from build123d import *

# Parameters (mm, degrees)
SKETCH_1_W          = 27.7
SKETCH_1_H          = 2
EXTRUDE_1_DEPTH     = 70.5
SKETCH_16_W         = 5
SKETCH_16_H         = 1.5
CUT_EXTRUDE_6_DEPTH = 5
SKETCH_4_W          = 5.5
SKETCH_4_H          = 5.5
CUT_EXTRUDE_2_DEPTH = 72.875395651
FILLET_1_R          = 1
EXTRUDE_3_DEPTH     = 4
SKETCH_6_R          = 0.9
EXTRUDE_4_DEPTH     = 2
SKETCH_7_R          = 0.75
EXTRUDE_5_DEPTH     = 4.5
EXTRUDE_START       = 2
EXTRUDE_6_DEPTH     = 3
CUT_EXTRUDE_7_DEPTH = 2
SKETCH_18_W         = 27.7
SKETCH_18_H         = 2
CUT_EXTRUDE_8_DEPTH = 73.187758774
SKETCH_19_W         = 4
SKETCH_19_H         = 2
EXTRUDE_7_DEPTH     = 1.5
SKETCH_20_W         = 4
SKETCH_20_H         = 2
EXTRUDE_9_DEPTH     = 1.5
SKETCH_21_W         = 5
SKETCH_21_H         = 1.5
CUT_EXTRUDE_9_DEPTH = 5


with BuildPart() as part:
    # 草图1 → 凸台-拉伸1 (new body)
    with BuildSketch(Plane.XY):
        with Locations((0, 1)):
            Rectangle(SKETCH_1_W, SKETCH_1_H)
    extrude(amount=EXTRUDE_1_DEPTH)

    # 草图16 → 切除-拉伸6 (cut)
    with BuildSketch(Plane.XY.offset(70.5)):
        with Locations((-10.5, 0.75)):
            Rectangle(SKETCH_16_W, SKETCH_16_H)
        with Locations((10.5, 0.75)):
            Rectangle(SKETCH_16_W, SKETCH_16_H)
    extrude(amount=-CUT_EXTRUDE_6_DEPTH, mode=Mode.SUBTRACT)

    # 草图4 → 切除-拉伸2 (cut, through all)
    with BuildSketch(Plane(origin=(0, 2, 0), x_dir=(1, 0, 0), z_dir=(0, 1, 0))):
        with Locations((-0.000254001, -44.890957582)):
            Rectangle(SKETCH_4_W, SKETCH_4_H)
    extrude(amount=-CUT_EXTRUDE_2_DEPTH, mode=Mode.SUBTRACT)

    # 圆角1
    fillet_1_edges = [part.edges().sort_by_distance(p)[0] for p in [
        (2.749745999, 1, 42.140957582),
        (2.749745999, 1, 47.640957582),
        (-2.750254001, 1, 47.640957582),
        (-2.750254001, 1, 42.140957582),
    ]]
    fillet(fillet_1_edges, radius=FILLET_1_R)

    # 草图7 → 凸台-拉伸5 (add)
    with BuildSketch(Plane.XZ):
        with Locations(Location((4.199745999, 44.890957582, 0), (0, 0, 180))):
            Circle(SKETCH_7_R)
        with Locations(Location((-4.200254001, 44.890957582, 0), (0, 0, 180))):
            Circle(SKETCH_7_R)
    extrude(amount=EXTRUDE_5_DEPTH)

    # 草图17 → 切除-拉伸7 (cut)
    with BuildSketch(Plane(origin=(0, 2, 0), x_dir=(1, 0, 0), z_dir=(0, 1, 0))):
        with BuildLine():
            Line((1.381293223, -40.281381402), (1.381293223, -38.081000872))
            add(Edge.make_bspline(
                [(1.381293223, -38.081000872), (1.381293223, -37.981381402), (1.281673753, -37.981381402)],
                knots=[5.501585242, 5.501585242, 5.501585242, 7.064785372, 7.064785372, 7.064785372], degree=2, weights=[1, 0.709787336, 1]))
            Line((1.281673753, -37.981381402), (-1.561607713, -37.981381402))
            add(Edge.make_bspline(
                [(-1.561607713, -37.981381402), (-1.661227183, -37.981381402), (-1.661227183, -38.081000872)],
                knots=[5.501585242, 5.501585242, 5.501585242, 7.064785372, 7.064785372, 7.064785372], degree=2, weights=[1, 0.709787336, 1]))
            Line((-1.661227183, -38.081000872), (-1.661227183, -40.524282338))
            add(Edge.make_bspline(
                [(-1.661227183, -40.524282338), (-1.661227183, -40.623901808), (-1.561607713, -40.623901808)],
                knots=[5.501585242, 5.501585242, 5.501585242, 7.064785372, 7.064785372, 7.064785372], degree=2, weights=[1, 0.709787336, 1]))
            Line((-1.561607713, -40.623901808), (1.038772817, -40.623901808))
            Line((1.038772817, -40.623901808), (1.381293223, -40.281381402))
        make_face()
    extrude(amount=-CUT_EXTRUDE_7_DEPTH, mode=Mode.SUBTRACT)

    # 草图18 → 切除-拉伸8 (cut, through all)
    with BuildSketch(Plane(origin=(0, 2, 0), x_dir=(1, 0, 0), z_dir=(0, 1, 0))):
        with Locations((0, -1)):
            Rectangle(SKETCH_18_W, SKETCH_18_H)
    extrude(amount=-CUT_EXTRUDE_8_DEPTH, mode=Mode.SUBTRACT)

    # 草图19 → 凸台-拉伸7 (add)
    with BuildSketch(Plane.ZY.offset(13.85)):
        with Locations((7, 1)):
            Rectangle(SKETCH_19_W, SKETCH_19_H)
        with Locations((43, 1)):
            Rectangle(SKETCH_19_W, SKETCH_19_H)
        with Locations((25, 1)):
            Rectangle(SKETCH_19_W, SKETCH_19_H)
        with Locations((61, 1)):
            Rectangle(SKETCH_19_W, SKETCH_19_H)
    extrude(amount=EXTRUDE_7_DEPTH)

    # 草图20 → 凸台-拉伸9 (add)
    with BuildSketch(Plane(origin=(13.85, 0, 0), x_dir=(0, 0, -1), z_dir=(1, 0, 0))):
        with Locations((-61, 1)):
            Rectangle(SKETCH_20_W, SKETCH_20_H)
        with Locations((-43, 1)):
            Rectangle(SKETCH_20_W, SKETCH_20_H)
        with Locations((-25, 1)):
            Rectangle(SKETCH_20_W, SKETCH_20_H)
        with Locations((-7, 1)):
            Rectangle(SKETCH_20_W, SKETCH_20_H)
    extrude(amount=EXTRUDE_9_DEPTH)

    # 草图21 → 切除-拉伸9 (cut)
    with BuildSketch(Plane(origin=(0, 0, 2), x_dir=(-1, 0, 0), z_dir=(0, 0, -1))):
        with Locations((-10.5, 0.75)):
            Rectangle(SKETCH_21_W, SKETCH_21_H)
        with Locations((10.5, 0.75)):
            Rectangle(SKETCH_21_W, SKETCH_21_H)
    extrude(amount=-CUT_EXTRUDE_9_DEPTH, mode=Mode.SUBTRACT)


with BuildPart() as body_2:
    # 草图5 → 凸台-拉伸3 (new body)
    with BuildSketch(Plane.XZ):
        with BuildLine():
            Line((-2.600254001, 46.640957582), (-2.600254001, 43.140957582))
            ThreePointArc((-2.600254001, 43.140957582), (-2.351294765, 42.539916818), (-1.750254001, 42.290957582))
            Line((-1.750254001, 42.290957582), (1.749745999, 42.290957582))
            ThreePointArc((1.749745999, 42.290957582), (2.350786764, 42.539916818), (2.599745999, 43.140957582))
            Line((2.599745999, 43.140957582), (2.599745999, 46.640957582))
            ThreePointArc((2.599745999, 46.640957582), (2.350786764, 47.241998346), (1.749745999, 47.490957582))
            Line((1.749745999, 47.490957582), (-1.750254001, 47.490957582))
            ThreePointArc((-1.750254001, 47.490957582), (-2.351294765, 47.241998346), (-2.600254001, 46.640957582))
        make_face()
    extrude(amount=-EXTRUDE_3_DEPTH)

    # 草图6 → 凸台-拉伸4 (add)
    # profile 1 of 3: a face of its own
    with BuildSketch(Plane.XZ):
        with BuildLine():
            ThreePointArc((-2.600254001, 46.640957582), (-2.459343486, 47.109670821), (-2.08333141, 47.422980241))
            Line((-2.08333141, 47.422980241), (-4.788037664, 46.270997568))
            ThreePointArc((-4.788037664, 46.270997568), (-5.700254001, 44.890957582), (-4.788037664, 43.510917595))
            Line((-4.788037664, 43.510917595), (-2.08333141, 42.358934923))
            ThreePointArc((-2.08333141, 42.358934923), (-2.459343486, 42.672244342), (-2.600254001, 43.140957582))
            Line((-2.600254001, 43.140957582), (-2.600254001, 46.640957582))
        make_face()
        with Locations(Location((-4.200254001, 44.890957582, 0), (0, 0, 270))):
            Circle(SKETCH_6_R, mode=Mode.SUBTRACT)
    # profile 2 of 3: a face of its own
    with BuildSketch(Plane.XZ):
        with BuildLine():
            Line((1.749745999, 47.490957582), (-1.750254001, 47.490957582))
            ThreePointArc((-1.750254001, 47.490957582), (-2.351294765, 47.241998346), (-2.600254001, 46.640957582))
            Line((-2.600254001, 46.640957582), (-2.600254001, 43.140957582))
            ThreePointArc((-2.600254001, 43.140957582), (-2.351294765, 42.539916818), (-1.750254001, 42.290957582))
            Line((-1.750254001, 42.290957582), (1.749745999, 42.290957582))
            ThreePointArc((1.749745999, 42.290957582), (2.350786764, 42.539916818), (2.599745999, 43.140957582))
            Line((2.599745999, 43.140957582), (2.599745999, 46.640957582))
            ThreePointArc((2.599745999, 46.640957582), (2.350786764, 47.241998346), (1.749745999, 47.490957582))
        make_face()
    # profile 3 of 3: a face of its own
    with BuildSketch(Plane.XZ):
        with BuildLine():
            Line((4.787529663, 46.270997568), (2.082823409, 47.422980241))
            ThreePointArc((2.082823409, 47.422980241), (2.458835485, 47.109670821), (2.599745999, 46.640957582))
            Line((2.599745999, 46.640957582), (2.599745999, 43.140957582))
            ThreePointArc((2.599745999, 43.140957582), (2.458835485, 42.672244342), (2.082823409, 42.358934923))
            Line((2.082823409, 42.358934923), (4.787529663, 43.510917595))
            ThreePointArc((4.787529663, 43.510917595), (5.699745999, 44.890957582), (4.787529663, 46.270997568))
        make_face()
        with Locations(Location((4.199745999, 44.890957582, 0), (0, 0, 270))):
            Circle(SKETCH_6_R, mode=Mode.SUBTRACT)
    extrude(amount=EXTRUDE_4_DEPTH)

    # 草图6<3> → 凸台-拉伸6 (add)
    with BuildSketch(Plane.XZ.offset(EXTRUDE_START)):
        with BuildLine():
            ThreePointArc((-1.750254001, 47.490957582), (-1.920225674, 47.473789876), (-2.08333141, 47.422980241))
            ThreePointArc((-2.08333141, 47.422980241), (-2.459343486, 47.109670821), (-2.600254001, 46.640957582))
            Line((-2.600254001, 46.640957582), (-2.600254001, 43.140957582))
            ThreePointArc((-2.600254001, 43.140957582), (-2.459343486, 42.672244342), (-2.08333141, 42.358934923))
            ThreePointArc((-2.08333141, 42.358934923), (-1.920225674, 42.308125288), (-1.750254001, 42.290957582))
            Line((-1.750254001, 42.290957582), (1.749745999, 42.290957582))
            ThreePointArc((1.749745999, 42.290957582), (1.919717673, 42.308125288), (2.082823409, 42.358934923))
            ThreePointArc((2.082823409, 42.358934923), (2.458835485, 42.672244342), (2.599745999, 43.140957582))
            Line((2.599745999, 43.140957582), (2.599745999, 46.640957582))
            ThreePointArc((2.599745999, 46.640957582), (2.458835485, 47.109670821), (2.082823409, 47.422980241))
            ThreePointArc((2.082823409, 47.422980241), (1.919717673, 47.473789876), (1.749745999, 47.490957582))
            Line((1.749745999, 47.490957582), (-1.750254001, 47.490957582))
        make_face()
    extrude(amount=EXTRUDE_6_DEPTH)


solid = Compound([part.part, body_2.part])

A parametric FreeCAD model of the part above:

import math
import FreeCAD as App
import Part
import Sketcher
Q = App.Units.Quantity


def edges_at(feature, points):
    """Names of the edges that pass closest to the given points."""
    edges = feature.Shape.Edges
    near = lambda p: min(range(len(edges)), key=lambda i: edges[i].distToShape(Part.Vertex(*p))[0])
    return sorted({f"Edge{near(p) + 1}" for p in points})


def add_polygon(sketch, points):
    """Adds a closed chain of lines whose ends are joined by coincident constraints."""
    first, n = sketch.GeometryCount, len(points)
    for a, b in zip(points, points[1:] + points[:1]):
        sketch.addGeometry(Part.LineSegment(App.Vector(*a, 0), App.Vector(*b, 0)), False)
    for i in range(n):
        sketch.addConstraint(Sketcher.Constraint("Coincident", first + i, 2, first + (i + 1) % n, 1))

doc = App.newDocument("Part")
body = doc.addObject("PartDesign::Body", "Body")

sketch1 = body.newObject("Sketcher::SketchObject", "Sketch")
sketch1.AttachmentSupport = (doc.getObject("XY_Plane"), [""])
sketch1.MapMode = "FlatFace"
add_polygon(sketch1, [(-13.85, 2), (-13.85, 0), (13.85, 0), (13.85, 2)])
sketch1.addConstraint(Sketcher.Constraint("Vertical", 0))
sketch1.addConstraint(Sketcher.Constraint("Horizontal", 1))
sketch1.addConstraint(Sketcher.Constraint("Vertical", 2))
sketch1.addConstraint(Sketcher.Constraint("Horizontal", 3))
sketch1.addConstraint(Sketcher.Constraint("Symmetric", 0, 2, 1, 2, -1, 1))
sketch1.addConstraint(Sketcher.Constraint("DistanceY", 0, 2, 0, 1, Q("2 mm")))
sketch1.addConstraint(Sketcher.Constraint("DistanceX", 1, 1, 1, 2, Q("27.7 mm")))
pad1 = body.newObject("PartDesign::Pad", "Pad")
pad1.Profile = sketch1
pad1.Length = 70.5

sketch2 = body.newObject("Sketcher::SketchObject", "Sketch001")
sketch2.AttachmentSupport = (doc.getObject("XY_Plane"), [""])
sketch2.MapMode = "FlatFace"
sketch2.AttachmentOffset = App.Placement(App.Vector(0, 0, 70.5), App.Rotation())
add_polygon(sketch2, [(-13, 1.5), (-13, 0), (-8, 0), (-8, 1.5)])
add_polygon(sketch2, [(8, 1.5), (8, 0), (13, 0), (13, 1.5)])
sketch2.addConstraint(Sketcher.Constraint("Vertical", 0))
sketch2.addConstraint(Sketcher.Constraint("Horizontal", 1))
sketch2.addConstraint(Sketcher.Constraint("Vertical", 2))
sketch2.addConstraint(Sketcher.Constraint("Horizontal", 3))
sketch2.addConstraint(Sketcher.Constraint("Vertical", 4))
sketch2.addConstraint(Sketcher.Constraint("Horizontal", 5))
sketch2.addConstraint(Sketcher.Constraint("Vertical", 6))
sketch2.addConstraint(Sketcher.Constraint("Horizontal", 7))
sketch2.addConstraint(Sketcher.Constraint("Symmetric", 1, 2, 4, 2, -1, 1))
sketch2.addConstraint(Sketcher.Constraint("Symmetric", 0, 2, 5, 2, -2))
sketch2.addConstraint(Sketcher.Constraint("Horizontal", 3, 2, 6, 2))
sketch2.addConstraint(Sketcher.Constraint("DistanceX", 1, 1, 1, 2, Q("5 mm")))
sketch2.addConstraint(Sketcher.Constraint("DistanceY", 0, 2, 0, 1, Q("1.5 mm")))
sketch2.addConstraint(Sketcher.Constraint("DistanceX", 0, 2, -1, 1, Q("13 mm")))
pocket1 = body.newObject("PartDesign::Pocket", "Pocket")
pocket1.Profile = sketch2
pocket1.Length = 5

sketch3 = body.newObject("Sketcher::SketchObject", "Sketch002")
sketch3.AttachmentSupport = (doc.getObject("XZ_Plane"), [""])
sketch3.MapMode = "FlatFace"
sketch3.AttachmentOffset = App.Placement(App.Vector(0, 0, -2), App.Rotation())
add_polygon(sketch3, [(-2.750254, 42.140958), (-2.750254, 47.640958), (2.749746, 47.640958), (2.749746, 42.140958)])
sketch3.addConstraint(Sketcher.Constraint("Vertical", 0))
sketch3.addConstraint(Sketcher.Constraint("Horizontal", 1))
sketch3.addConstraint(Sketcher.Constraint("Vertical", 2))
sketch3.addConstraint(Sketcher.Constraint("Horizontal", 3))
sketch3.addConstraint(Sketcher.Constraint("Equal", 3, 0))
sketch3.addConstraint(Sketcher.Constraint("DistanceX", 1, 1, 1, 2, Q("5.5 mm")))
sketch3.addConstraint(Sketcher.Constraint("DistanceX", 0, 2, -1, 1, Q("2.750254 mm")))
sketch3.addConstraint(Sketcher.Constraint("DistanceY", -1, 1, 0, 2, Q("47.640958 mm")))
pocket2 = body.newObject("PartDesign::Pocket", "Pocket001")
pocket2.Profile = sketch3
pocket2.Type = "ThroughAll"
pocket2.Reversed = True
doc.recompute()

fillet = body.newObject("PartDesign::Fillet", "Fillet")
fillet.Base = (pocket2, edges_at(pocket2, [
    (2.75, 1, 42.141),
    (2.75, 1, 47.641),
    (-2.75, 1, 47.641),
    (-2.75, 1, 42.141),
]))
fillet.Radius = 1

sketch4 = body.newObject("Sketcher::SketchObject", "Sketch003")
sketch4.AttachmentSupport = (doc.getObject("XZ_Plane"), [""])
sketch4.MapMode = "FlatFace"
sketch4.addGeometry(Part.Circle(App.Vector(4.199746, 44.890958, 0), App.Vector(0, 0, 1), 0.75), False)
sketch4.addGeometry(Part.Circle(App.Vector(-4.200254, 44.890958, 0), App.Vector(0, 0, 1), 0.75), False)
sketch4.addConstraint(Sketcher.Constraint("Equal", 0, 1))
sketch4.addConstraint(Sketcher.Constraint("Horizontal", 0, 3, 1, 3))
sketch4.addConstraint(Sketcher.Constraint("Diameter", 0, Q("1.5 mm")))
sketch4.addConstraint(Sketcher.Constraint("DistanceX", 1, 3, 0, 3, Q("8.4 mm")))
sketch4.addConstraint(Sketcher.Constraint("DistanceX", -1, 1, 0, 3, Q("4.199746 mm")))
sketch4.addConstraint(Sketcher.Constraint("DistanceY", -1, 1, 0, 3, Q("44.890958 mm")))
pad2 = body.newObject("PartDesign::Pad", "Pad001")
pad2.Profile = sketch4
pad2.Length = 4.5

sketch5 = body.newObject("Sketcher::SketchObject", "Sketch004")
sketch5.AttachmentSupport = (doc.getObject("XZ_Plane"), [""])
sketch5.MapMode = "FlatFace"
sketch5.AttachmentOffset = App.Placement(App.Vector(0, 0, -2), App.Rotation())
sketch5.addGeometry(Part.LineSegment(App.Vector(1.381293, 40.281381, 0), App.Vector(1.381293, 38.081001, 0)), False)
sketch5.addGeometry(Part.BSplineCurve([App.Vector(1.381293, 38.081001, 0), App.Vector(1.381293, 37.981381, 0), App.Vector(1.281674, 37.981381, 0)], [3, 3], [5.501585242, 7.064785372], False, 2, [1, 0.709787336, 1], False), False)
sketch5.addGeometry(Part.LineSegment(App.Vector(1.281674, 37.981381, 0), App.Vector(-1.561608, 37.981381, 0)), False)
sketch5.addGeometry(Part.BSplineCurve([App.Vector(-1.561608, 37.981381, 0), App.Vector(-1.661227, 37.981381, 0), App.Vector(-1.661227, 38.081001, 0)], [3, 3], [5.501585242, 7.064785372], False, 2, [1, 0.709787336, 1], False), False)
sketch5.addGeometry(Part.LineSegment(App.Vector(-1.661227, 38.081001, 0), App.Vector(-1.661227, 40.524282, 0)), False)
sketch5.addGeometry(Part.BSplineCurve([App.Vector(-1.661227, 40.524282, 0), App.Vector(-1.661227, 40.623902, 0), App.Vector(-1.561608, 40.623902, 0)], [3, 3], [5.501585242, 7.064785372], False, 2, [1, 0.709787336, 1], False), False)
sketch5.addGeometry(Part.LineSegment(App.Vector(-1.561608, 40.623902, 0), App.Vector(1.038773, 40.623902, 0)), False)
sketch5.addGeometry(Part.LineSegment(App.Vector(1.038773, 40.623902, 0), App.Vector(1.381293, 40.281381, 0)), False)
sketch5.addConstraint(Sketcher.Constraint("Block", 1))
sketch5.addConstraint(Sketcher.Constraint("Block", 3))
sketch5.addConstraint(Sketcher.Constraint("Block", 5))
sketch5.addConstraint(Sketcher.Constraint("Coincident", 0, 2, 1, 1))
sketch5.addConstraint(Sketcher.Constraint("Coincident", 1, 2, 2, 1))
sketch5.addConstraint(Sketcher.Constraint("Coincident", 2, 2, 3, 1))
sketch5.addConstraint(Sketcher.Constraint("Coincident", 3, 2, 4, 1))
sketch5.addConstraint(Sketcher.Constraint("Coincident", 4, 2, 5, 1))
sketch5.addConstraint(Sketcher.Constraint("Coincident", 5, 2, 6, 1))
sketch5.addConstraint(Sketcher.Constraint("Coincident", 6, 2, 7, 1))
sketch5.addConstraint(Sketcher.Constraint("Coincident", 7, 2, 0, 1))
sketch5.addConstraint(Sketcher.Constraint("Vertical", 0))
sketch5.addConstraint(Sketcher.Constraint("Horizontal", 6))
sketch5.addConstraint(Sketcher.Constraint("DistanceX", 4, 2, 6, 2, Q("2.7 mm")))
sketch5.addConstraint(Sketcher.Constraint("DistanceY", 2, 2, 7, 2, Q("2.3 mm")))
pocket3 = body.newObject("PartDesign::Pocket", "Pocket002")
pocket3.Profile = sketch5
pocket3.Length = 2
pocket3.Reversed = True

sketch6 = body.newObject("Sketcher::SketchObject", "Sketch005")
sketch6.AttachmentSupport = (doc.getObject("XZ_Plane"), [""])
sketch6.MapMode = "FlatFace"
sketch6.AttachmentOffset = App.Placement(App.Vector(0, 0, -2), App.Rotation())
add_polygon(sketch6, [(-13.85, 0), (-13.85, 2), (13.85, 2), (13.85, 0)])
sketch6.addConstraint(Sketcher.Constraint("Vertical", 0))
sketch6.addConstraint(Sketcher.Constraint("Horizontal", 1))
sketch6.addConstraint(Sketcher.Constraint("Vertical", 2))
sketch6.addConstraint(Sketcher.Constraint("Horizontal", 3))
sketch6.addConstraint(Sketcher.Constraint("Symmetric", 2, 2, 3, 2, -1, 1))
sketch6.addConstraint(Sketcher.Constraint("DistanceY", 0, 1, 0, 2, Q("2 mm")))
sketch6.addConstraint(Sketcher.Constraint("DistanceX", 1, 1, 1, 2, Q("27.7 mm")))
pocket4 = body.newObject("PartDesign::Pocket", "Pocket003")
pocket4.Profile = sketch6
pocket4.Type = "ThroughAll"
pocket4.Reversed = True

sketch7 = body.newObject("Sketcher::SketchObject", "Sketch006")
sketch7.AttachmentSupport = (doc.getObject("YZ_Plane"), [""])
sketch7.MapMode = "FlatFace"
sketch7.AttachmentOffset = App.Placement(App.Vector(0, 0, -13.85), App.Rotation())
add_polygon(sketch7, [(2, 5), (0, 5), (0, 9), (2, 9)])
add_polygon(sketch7, [(2, 41), (0, 41), (0, 45), (2, 45)])
add_polygon(sketch7, [(2, 23), (0, 23), (0, 27), (2, 27)])
add_polygon(sketch7, [(2, 59), (0, 59), (0, 63), (2, 63)])
sketch7.addConstraint(Sketcher.Constraint("Horizontal", 0))
sketch7.addConstraint(Sketcher.Constraint("Vertical", 1))
sketch7.addConstraint(Sketcher.Constraint("Horizontal", 2))
sketch7.addConstraint(Sketcher.Constraint("Vertical", 3))
sketch7.addConstraint(Sketcher.Constraint("Horizontal", 4))
sketch7.addConstraint(Sketcher.Constraint("Vertical", 5))
sketch7.addConstraint(Sketcher.Constraint("Horizontal", 6))
sketch7.addConstraint(Sketcher.Constraint("Vertical", 7))
sketch7.addConstraint(Sketcher.Constraint("Horizontal", 8))
sketch7.addConstraint(Sketcher.Constraint("Vertical", 9))
sketch7.addConstraint(Sketcher.Constraint("Horizontal", 10))
sketch7.addConstraint(Sketcher.Constraint("Vertical", 11))
sketch7.addConstraint(Sketcher.Constraint("Horizontal", 12))
sketch7.addConstraint(Sketcher.Constraint("Vertical", 13))
sketch7.addConstraint(Sketcher.Constraint("Horizontal", 14))
sketch7.addConstraint(Sketcher.Constraint("Vertical", 15))
sketch7.addConstraint(Sketcher.Constraint("PointOnObject", 0, 2, -2))
sketch7.addConstraint(Sketcher.Constraint("PointOnObject", 4, 2, -2))
sketch7.addConstraint(Sketcher.Constraint("PointOnObject", 8, 2, -2))
sketch7.addConstraint(Sketcher.Constraint("PointOnObject", 12, 2, -2))
sketch7.addConstraint(Sketcher.Constraint("Vertical", 3, 2, 6, 2))
sketch7.addConstraint(Sketcher.Constraint("Vertical", 7, 2, 10, 2))
sketch7.addConstraint(Sketcher.Constraint("Vertical", 11, 2, 14, 2))
sketch7.addConstraint(Sketcher.Constraint("Equal", 3, 5))
sketch7.addConstraint(Sketcher.Constraint("Equal", 7, 9))
sketch7.addConstraint(Sketcher.Constraint("Equal", 11, 13))
sketch7.addConstraint(Sketcher.Constraint("DistanceX", 0, 2, 0, 1, Q("2 mm")))
sketch7.addConstraint(Sketcher.Constraint("DistanceY", 1, 1, 1, 2, Q("4 mm")))
sketch7.addConstraint(Sketcher.Constraint("DistanceY", -1, 1, 0, 2, Q("5 mm")))
sketch7.addConstraint(Sketcher.Constraint("DistanceY", -1, 1, 4, 2, Q("41 mm")))
sketch7.addConstraint(Sketcher.Constraint("DistanceY", -1, 1, 8, 2, Q("23 mm")))
sketch7.addConstraint(Sketcher.Constraint("DistanceY", -1, 1, 12, 2, Q("59 mm")))
pad3 = body.newObject("PartDesign::Pad", "Pad002")
pad3.Profile = sketch7
pad3.Length = 1.5
pad3.Reversed = True

sketch8 = body.newObject("Sketcher::SketchObject", "Sketch007")
sketch8.AttachmentSupport = (doc.getObject("YZ_Plane"), [""])
sketch8.MapMode = "FlatFace"
sketch8.AttachmentOffset = App.Placement(App.Vector(0, 0, 13.85), App.Rotation())
add_polygon(sketch8, [(2, 63), (0, 63), (0, 59), (2, 59)])
add_polygon(sketch8, [(2, 45), (0, 45), (0, 41), (2, 41)])
add_polygon(sketch8, [(2, 27), (0, 27), (0, 23), (2, 23)])
add_polygon(sketch8, [(2, 9), (0, 9), (0, 5), (2, 5)])
sketch8.addConstraint(Sketcher.Constraint("Horizontal", 0))
sketch8.addConstraint(Sketcher.Constraint("Vertical", 1))
sketch8.addConstraint(Sketcher.Constraint("Horizontal", 2))
sketch8.addConstraint(Sketcher.Constraint("Vertical", 3))
sketch8.addConstraint(Sketcher.Constraint("Horizontal", 4))
sketch8.addConstraint(Sketcher.Constraint("Vertical", 5))
sketch8.addConstraint(Sketcher.Constraint("Horizontal", 6))
sketch8.addConstraint(Sketcher.Constraint("Vertical", 7))
sketch8.addConstraint(Sketcher.Constraint("Horizontal", 8))
sketch8.addConstraint(Sketcher.Constraint("Vertical", 9))
sketch8.addConstraint(Sketcher.Constraint("Horizontal", 10))
sketch8.addConstraint(Sketcher.Constraint("Vertical", 11))
sketch8.addConstraint(Sketcher.Constraint("Horizontal", 12))
sketch8.addConstraint(Sketcher.Constraint("Vertical", 13))
sketch8.addConstraint(Sketcher.Constraint("Horizontal", 14))
sketch8.addConstraint(Sketcher.Constraint("Vertical", 15))
sketch8.addConstraint(Sketcher.Constraint("PointOnObject", 0, 2, -2))
sketch8.addConstraint(Sketcher.Constraint("PointOnObject", 4, 2, -2))
sketch8.addConstraint(Sketcher.Constraint("PointOnObject", 8, 2, -2))
sketch8.addConstraint(Sketcher.Constraint("PointOnObject", 12, 2, -2))
sketch8.addConstraint(Sketcher.Constraint("Vertical", 3, 2, 6, 2))
sketch8.addConstraint(Sketcher.Constraint("Vertical", 7, 2, 10, 2))
sketch8.addConstraint(Sketcher.Constraint("Vertical", 11, 2, 14, 2))
sketch8.addConstraint(Sketcher.Constraint("Equal", 3, 5))
sketch8.addConstraint(Sketcher.Constraint("Equal", 7, 9))
sketch8.addConstraint(Sketcher.Constraint("Equal", 11, 13))
sketch8.addConstraint(Sketcher.Constraint("DistanceX", 0, 2, 0, 1, Q("2 mm")))
sketch8.addConstraint(Sketcher.Constraint("DistanceY", 1, 2, 1, 1, Q("4 mm")))
sketch8.addConstraint(Sketcher.Constraint("DistanceY", -1, 1, 0, 2, Q("63 mm")))
sketch8.addConstraint(Sketcher.Constraint("DistanceY", -1, 1, 4, 2, Q("45 mm")))
sketch8.addConstraint(Sketcher.Constraint("DistanceY", -1, 1, 8, 2, Q("27 mm")))
sketch8.addConstraint(Sketcher.Constraint("DistanceY", -1, 1, 12, 2, Q("9 mm")))
pad4 = body.newObject("PartDesign::Pad", "Pad003")
pad4.Profile = sketch8
pad4.Length = 1.5

sketch9 = body.newObject("Sketcher::SketchObject", "Sketch008")
sketch9.AttachmentSupport = (doc.getObject("XY_Plane"), [""])
sketch9.MapMode = "FlatFace"
sketch9.AttachmentOffset = App.Placement(App.Vector(0, 0, 2), App.Rotation())
add_polygon(sketch9, [(13, 1.5), (13, 0), (8, 0), (8, 1.5)])
add_polygon(sketch9, [(-8, 1.5), (-8, 0), (-13, 0), (-13, 1.5)])
sketch9.addConstraint(Sketcher.Constraint("Vertical", 0))
sketch9.addConstraint(Sketcher.Constraint("Horizontal", 1))
sketch9.addConstraint(Sketcher.Constraint("Vertical", 2))
sketch9.addConstraint(Sketcher.Constraint("Horizontal", 3))
sketch9.addConstraint(Sketcher.Constraint("Vertical", 4))
sketch9.addConstraint(Sketcher.Constraint("Horizontal", 5))
sketch9.addConstraint(Sketcher.Constraint("Vertical", 6))
sketch9.addConstraint(Sketcher.Constraint("Horizontal", 7))
sketch9.addConstraint(Sketcher.Constraint("Symmetric", 1, 2, 4, 2, -1, 1))
sketch9.addConstraint(Sketcher.Constraint("Symmetric", 0, 2, 5, 2, -2))
sketch9.addConstraint(Sketcher.Constraint("Horizontal", 3, 2, 6, 2))
sketch9.addConstraint(Sketcher.Constraint("DistanceX", 1, 2, 1, 1, Q("5 mm")))
sketch9.addConstraint(Sketcher.Constraint("DistanceY", 0, 2, 0, 1, Q("1.5 mm")))
sketch9.addConstraint(Sketcher.Constraint("DistanceX", -1, 1, 0, 2, Q("13 mm")))
pocket5 = body.newObject("PartDesign::Pocket", "Pocket004")
pocket5.Profile = sketch9
pocket5.Length = 5
pocket5.Reversed = True
body2 = doc.addObject("PartDesign::Body", "Body001")

sketch10 = body2.newObject("Sketcher::SketchObject", "Sketch009")
sketch10.AttachmentSupport = (doc.getObject("XZ_Plane001"), [""])
sketch10.MapMode = "FlatFace"
sketch10.addGeometry(Part.LineSegment(App.Vector(-2.600254, 46.640958, 0), App.Vector(-2.600254, 43.140958, 0)), False)
sketch10.addGeometry(Part.ArcOfCircle(Part.Circle(App.Vector(-1.750254, 43.140958, 0), App.Vector(0, 0, 1), 0.85), math.radians(180), math.radians(270)), False)
sketch10.addGeometry(Part.LineSegment(App.Vector(-1.750254, 42.290958, 0), App.Vector(1.749746, 42.290958, 0)), False)
sketch10.addGeometry(Part.ArcOfCircle(Part.Circle(App.Vector(1.749746, 43.140958, 0), App.Vector(0, 0, 1), 0.85), math.radians(-90), math.radians(0)), False)
sketch10.addGeometry(Part.LineSegment(App.Vector(2.599746, 43.140958, 0), App.Vector(2.599746, 46.640958, 0)), False)
sketch10.addGeometry(Part.ArcOfCircle(Part.Circle(App.Vector(1.749746, 46.640958, 0), App.Vector(0, 0, 1), 0.85), math.radians(0), math.radians(90)), False)
sketch10.addGeometry(Part.LineSegment(App.Vector(1.749746, 47.490958, 0), App.Vector(-1.750254, 47.490958, 0)), False)
sketch10.addGeometry(Part.ArcOfCircle(Part.Circle(App.Vector(-1.750254, 46.640958, 0), App.Vector(0, 0, 1), 0.85), math.radians(90), math.radians(180)), False)
sketch10.addConstraint(Sketcher.Constraint("Tangent", 0, 2, 1, 1))
sketch10.addConstraint(Sketcher.Constraint("Tangent", 1, 2, 2, 1))
sketch10.addConstraint(Sketcher.Constraint("Tangent", 2, 2, 3, 1))
sketch10.addConstraint(Sketcher.Constraint("Tangent", 3, 2, 4, 1))
sketch10.addConstraint(Sketcher.Constraint("Tangent", 4, 2, 5, 1))
sketch10.addConstraint(Sketcher.Constraint("Tangent", 5, 2, 6, 1))
sketch10.addConstraint(Sketcher.Constraint("Tangent", 6, 2, 7, 1))
sketch10.addConstraint(Sketcher.Constraint("Tangent", 7, 2, 0, 1))
sketch10.addConstraint(Sketcher.Constraint("Vertical", 0))
sketch10.addConstraint(Sketcher.Constraint("Horizontal", 2))
sketch10.addConstraint(Sketcher.Constraint("Vertical", 4))
sketch10.addConstraint(Sketcher.Constraint("Horizontal", 6))
sketch10.addConstraint(Sketcher.Constraint("Equal", 1, 3))
sketch10.addConstraint(Sketcher.Constraint("Equal", 3, 5))
sketch10.addConstraint(Sketcher.Constraint("Equal", 5, 7))
sketch10.addConstraint(Sketcher.Constraint("Equal", 6, 0))
sketch10.addConstraint(Sketcher.Constraint("Radius", 1, Q("0.85 mm")))
sketch10.addConstraint(Sketcher.Constraint("DistanceX", 2, 1, 2, 2, Q("3.5 mm")))
sketch10.addConstraint(Sketcher.Constraint("DistanceX", 1, 3, -1, 1, Q("1.750254 mm")))
sketch10.addConstraint(Sketcher.Constraint("DistanceY", -1, 1, 1, 3, Q("43.140958 mm")))
pad5 = body2.newObject("PartDesign::Pad", "Pad004")
pad5.Profile = sketch10
pad5.Length = 4
pad5.Reversed = True

sketch11 = body2.newObject("Sketcher::SketchObject", "Sketch010")
sketch11.AttachmentSupport = (doc.getObject("XZ_Plane001"), [""])
sketch11.MapMode = "FlatFace"
sketch11.addGeometry(Part.LineSegment(App.Vector(-2.083331, 47.42298, 0), App.Vector(-4.788038, 46.270998, 0)), False)
sketch11.addGeometry(Part.ArcOfCircle(Part.Circle(App.Vector(-4.200254, 44.890958, 0), App.Vector(0, 0, 1), 1.5), math.radians(113.070021), math.radians(246.929979)), False)
sketch11.addGeometry(Part.LineSegment(App.Vector(-4.788038, 43.510918, 0), App.Vector(-2.083331, 42.358935, 0)), False)
sketch11.addGeometry(Part.ArcOfCircle(Part.Circle(App.Vector(-1.750254, 43.140958, 0), App.Vector(0, 0, 1), 0.85), math.radians(-113.070021), math.radians(-90)), False)
sketch11.addGeometry(Part.LineSegment(App.Vector(-1.750254, 42.290958, 0), App.Vector(1.749746, 42.290958, 0)), False)
sketch11.addGeometry(Part.ArcOfCircle(Part.Circle(App.Vector(1.749746, 43.140958, 0), App.Vector(0, 0, 1), 0.85), math.radians(-90), math.radians(-66.929979)), False)
sketch11.addGeometry(Part.LineSegment(App.Vector(2.082823, 42.358935, 0), App.Vector(4.78753, 43.510918, 0)), False)
sketch11.addGeometry(Part.ArcOfCircle(Part.Circle(App.Vector(4.199746, 44.890958, 0), App.Vector(0, 0, 1), 1.5), math.radians(-66.929979), math.radians(66.929979)), False)
sketch11.addGeometry(Part.LineSegment(App.Vector(4.78753, 46.270998, 0), App.Vector(2.082823, 47.42298, 0)), False)
sketch11.addGeometry(Part.ArcOfCircle(Part.Circle(App.Vector(1.749746, 46.640958, 0), App.Vector(0, 0, 1), 0.85), math.radians(66.929979), math.radians(90)), False)
sketch11.addGeometry(Part.LineSegment(App.Vector(1.749746, 47.490958, 0), App.Vector(-1.750254, 47.490958, 0)), False)
sketch11.addGeometry(Part.ArcOfCircle(Part.Circle(App.Vector(-1.750254, 46.640958, 0), App.Vector(0, 0, 1), 0.85), math.radians(90), math.radians(113.070021)), False)
sketch11.addGeometry(Part.Circle(App.Vector(-4.200254, 44.890958, 0), App.Vector(0, 0, 1), 0.9), False)
sketch11.addGeometry(Part.Circle(App.Vector(4.199746, 44.890958, 0), App.Vector(0, 0, 1), 0.9), False)
sketch11.addConstraint(Sketcher.Constraint("Tangent", 0, 2, 1, 1))
sketch11.addConstraint(Sketcher.Constraint("Tangent", 1, 2, 2, 1))
sketch11.addConstraint(Sketcher.Constraint("Tangent", 2, 2, 3, 1))
sketch11.addConstraint(Sketcher.Constraint("Tangent", 3, 2, 4, 1))
sketch11.addConstraint(Sketcher.Constraint("Tangent", 4, 2, 5, 1))
sketch11.addConstraint(Sketcher.Constraint("Tangent", 5, 2, 6, 1))
sketch11.addConstraint(Sketcher.Constraint("Tangent", 6, 2, 7, 1))
sketch11.addConstraint(Sketcher.Constraint("Tangent", 7, 2, 8, 1))
sketch11.addConstraint(Sketcher.Constraint("Tangent", 8, 2, 9, 1))
sketch11.addConstraint(Sketcher.Constraint("Tangent", 9, 2, 10, 1))
sketch11.addConstraint(Sketcher.Constraint("Tangent", 10, 2, 11, 1))
sketch11.addConstraint(Sketcher.Constraint("Tangent", 11, 2, 0, 1))
sketch11.addConstraint(Sketcher.Constraint("Horizontal", 4))
sketch11.addConstraint(Sketcher.Constraint("Horizontal", 10))
sketch11.addConstraint(Sketcher.Constraint("Coincident", 12, 3, 1, 3))
sketch11.addConstraint(Sketcher.Constraint("Coincident", 13, 3, 7, 3))
sketch11.addConstraint(Sketcher.Constraint("Equal", 3, 5))
sketch11.addConstraint(Sketcher.Constraint("Equal", 1, 7))
sketch11.addConstraint(Sketcher.Constraint("Equal", 5, 9))
sketch11.addConstraint(Sketcher.Constraint("Equal", 9, 11))
sketch11.addConstraint(Sketcher.Constraint("Equal", 12, 13))
sketch11.addConstraint(Sketcher.Constraint("Parallel", 0, 6))
sketch11.addConstraint(Sketcher.Constraint("Parallel", 2, 8))
sketch11.addConstraint(Sketcher.Constraint("Horizontal", 1, 3, 7, 3))
sketch11.addConstraint(Sketcher.Constraint("Horizontal", 2, 2, 5, 2))
sketch11.addConstraint(Sketcher.Constraint("Vertical", 5, 3, 9, 3))
sketch11.addConstraint(Sketcher.Constraint("Diameter", 12, Q("1.8 mm")))
sketch11.addConstraint(Sketcher.Constraint("Radius", 1, Q("1.5 mm")))
sketch11.addConstraint(Sketcher.Constraint("Radius", 3, Q("0.85 mm")))
sketch11.addConstraint(Sketcher.Constraint("DistanceX", 4, 1, 4, 2, Q("3.5 mm")))
sketch11.addConstraint(Sketcher.Constraint("DistanceX", 1, 3, 7, 3, Q("8.4 mm")))
sketch11.addConstraint(Sketcher.Constraint("DistanceY", 5, 3, 9, 3, Q("3.5 mm")))
sketch11.addConstraint(Sketcher.Constraint("DistanceX", 2, 2, -1, 1, Q("2.083331 mm")))
sketch11.addConstraint(Sketcher.Constraint("DistanceY", -1, 1, 8, 2, Q("47.42298 mm")))
pad6 = body2.newObject("PartDesign::Pad", "Pad005")
pad6.Profile = sketch11
pad6.Length = 2

sketch12 = body2.newObject("Sketcher::SketchObject", "Sketch011")
sketch12.AttachmentSupport = (doc.getObject("XZ_Plane001"), [""])
sketch12.MapMode = "FlatFace"
sketch12.AttachmentOffset = App.Placement(App.Vector(0, 0, 2), App.Rotation())
sketch12.addGeometry(Part.ArcOfCircle(Part.Circle(App.Vector(-1.750254, 46.640958, 0), App.Vector(0, 0, 1), 0.85), math.radians(90), math.radians(113.07002)), False)
sketch12.addGeometry(Part.ArcOfCircle(Part.Circle(App.Vector(-1.750254, 46.640958, 0), App.Vector(0, 0, 1), 0.85), math.radians(113.070021), math.radians(180)), False)
sketch12.addGeometry(Part.LineSegment(App.Vector(-2.600254, 46.640958, 0), App.Vector(-2.600254, 43.140958, 0)), False)
sketch12.addGeometry(Part.ArcOfCircle(Part.Circle(App.Vector(-1.750254, 43.140958, 0), App.Vector(0, 0, 1), 0.85), math.radians(-180), math.radians(-113.070021)), False)
sketch12.addGeometry(Part.ArcOfCircle(Part.Circle(App.Vector(-1.750254, 43.140958, 0), App.Vector(0, 0, 1), 0.85), math.radians(-113.07002), math.radians(-90)), False)
sketch12.addGeometry(Part.LineSegment(App.Vector(-1.750254, 42.290958, 0), App.Vector(1.749746, 42.290958, 0)), False)
sketch12.addGeometry(Part.ArcOfCircle(Part.Circle(App.Vector(1.749746, 43.140958, 0), App.Vector(0, 0, 1), 0.85), math.radians(-90), math.radians(-66.92998)), False)
sketch12.addGeometry(Part.ArcOfCircle(Part.Circle(App.Vector(1.749746, 43.140958, 0), App.Vector(0, 0, 1), 0.85), math.radians(-66.929979), math.radians(0)), False)
sketch12.addGeometry(Part.LineSegment(App.Vector(2.599746, 43.140958, 0), App.Vector(2.599746, 46.640958, 0)), False)
sketch12.addGeometry(Part.ArcOfCircle(Part.Circle(App.Vector(1.749746, 46.640958, 0), App.Vector(0, 0, 1), 0.85), math.radians(0), math.radians(66.929979)), False)
sketch12.addGeometry(Part.ArcOfCircle(Part.Circle(App.Vector(1.749746, 46.640958, 0), App.Vector(0, 0, 1), 0.85), math.radians(66.92998), math.radians(90)), False)
sketch12.addGeometry(Part.LineSegment(App.Vector(1.749746, 47.490958, 0), App.Vector(-1.750254, 47.490958, 0)), False)
sketch12.addConstraint(Sketcher.Constraint("Tangent", 0, 2, 1, 1))
sketch12.addConstraint(Sketcher.Constraint("Tangent", 1, 2, 2, 1))
sketch12.addConstraint(Sketcher.Constraint("Tangent", 2, 2, 3, 1))
sketch12.addConstraint(Sketcher.Constraint("Tangent", 3, 2, 4, 1))
sketch12.addConstraint(Sketcher.Constraint("Tangent", 4, 2, 5, 1))
sketch12.addConstraint(Sketcher.Constraint("Tangent", 5, 2, 6, 1))
sketch12.addConstraint(Sketcher.Constraint("Tangent", 6, 2, 7, 1))
sketch12.addConstraint(Sketcher.Constraint("Tangent", 7, 2, 8, 1))
sketch12.addConstraint(Sketcher.Constraint("Tangent", 8, 2, 9, 1))
sketch12.addConstraint(Sketcher.Constraint("Tangent", 9, 2, 10, 1))
sketch12.addConstraint(Sketcher.Constraint("Tangent", 10, 2, 11, 1))
sketch12.addConstraint(Sketcher.Constraint("Tangent", 11, 2, 0, 1))
sketch12.addConstraint(Sketcher.Constraint("Vertical", 2))
sketch12.addConstraint(Sketcher.Constraint("Horizontal", 5))
sketch12.addConstraint(Sketcher.Constraint("Vertical", 8))
sketch12.addConstraint(Sketcher.Constraint("Horizontal", 11))
sketch12.addConstraint(Sketcher.Constraint("Equal", 0, 1))
sketch12.addConstraint(Sketcher.Constraint("Equal", 1, 3))
sketch12.addConstraint(Sketcher.Constraint("Equal", 3, 4))
sketch12.addConstraint(Sketcher.Constraint("Equal", 4, 6))
sketch12.addConstraint(Sketcher.Constraint("Equal", 6, 7))
sketch12.addConstraint(Sketcher.Constraint("Equal", 7, 9))
sketch12.addConstraint(Sketcher.Constraint("Equal", 9, 10))
sketch12.addConstraint(Sketcher.Constraint("Horizontal", 3, 2, 6, 2))
sketch12.addConstraint(Sketcher.Constraint("Horizontal", 0, 2, 9, 2))
sketch12.addConstraint(Sketcher.Constraint("Vertical", 0, 2, 3, 2))
sketch12.addConstraint(Sketcher.Constraint("Equal", 11, 2))
sketch12.addConstraint(Sketcher.Constraint("Radius", 0, Q("0.85 mm")))
sketch12.addConstraint(Sketcher.Constraint("DistanceX", 5, 1, 5, 2, Q("3.5 mm")))
sketch12.addConstraint(Sketcher.Constraint("DistanceX", 0, 2, -1, 1, Q("2.083331 mm")))
sketch12.addConstraint(Sketcher.Constraint("DistanceY", -1, 1, 0, 2, Q("47.42298 mm")))
sketch12.addConstraint(Sketcher.Constraint("DistanceX", 0, 3, -1, 1, Q("1.750254 mm")))
pad7 = body2.newObject("PartDesign::Pad", "Pad006")
pad7.Profile = sketch12
pad7.Length = 3

doc.recompute()
